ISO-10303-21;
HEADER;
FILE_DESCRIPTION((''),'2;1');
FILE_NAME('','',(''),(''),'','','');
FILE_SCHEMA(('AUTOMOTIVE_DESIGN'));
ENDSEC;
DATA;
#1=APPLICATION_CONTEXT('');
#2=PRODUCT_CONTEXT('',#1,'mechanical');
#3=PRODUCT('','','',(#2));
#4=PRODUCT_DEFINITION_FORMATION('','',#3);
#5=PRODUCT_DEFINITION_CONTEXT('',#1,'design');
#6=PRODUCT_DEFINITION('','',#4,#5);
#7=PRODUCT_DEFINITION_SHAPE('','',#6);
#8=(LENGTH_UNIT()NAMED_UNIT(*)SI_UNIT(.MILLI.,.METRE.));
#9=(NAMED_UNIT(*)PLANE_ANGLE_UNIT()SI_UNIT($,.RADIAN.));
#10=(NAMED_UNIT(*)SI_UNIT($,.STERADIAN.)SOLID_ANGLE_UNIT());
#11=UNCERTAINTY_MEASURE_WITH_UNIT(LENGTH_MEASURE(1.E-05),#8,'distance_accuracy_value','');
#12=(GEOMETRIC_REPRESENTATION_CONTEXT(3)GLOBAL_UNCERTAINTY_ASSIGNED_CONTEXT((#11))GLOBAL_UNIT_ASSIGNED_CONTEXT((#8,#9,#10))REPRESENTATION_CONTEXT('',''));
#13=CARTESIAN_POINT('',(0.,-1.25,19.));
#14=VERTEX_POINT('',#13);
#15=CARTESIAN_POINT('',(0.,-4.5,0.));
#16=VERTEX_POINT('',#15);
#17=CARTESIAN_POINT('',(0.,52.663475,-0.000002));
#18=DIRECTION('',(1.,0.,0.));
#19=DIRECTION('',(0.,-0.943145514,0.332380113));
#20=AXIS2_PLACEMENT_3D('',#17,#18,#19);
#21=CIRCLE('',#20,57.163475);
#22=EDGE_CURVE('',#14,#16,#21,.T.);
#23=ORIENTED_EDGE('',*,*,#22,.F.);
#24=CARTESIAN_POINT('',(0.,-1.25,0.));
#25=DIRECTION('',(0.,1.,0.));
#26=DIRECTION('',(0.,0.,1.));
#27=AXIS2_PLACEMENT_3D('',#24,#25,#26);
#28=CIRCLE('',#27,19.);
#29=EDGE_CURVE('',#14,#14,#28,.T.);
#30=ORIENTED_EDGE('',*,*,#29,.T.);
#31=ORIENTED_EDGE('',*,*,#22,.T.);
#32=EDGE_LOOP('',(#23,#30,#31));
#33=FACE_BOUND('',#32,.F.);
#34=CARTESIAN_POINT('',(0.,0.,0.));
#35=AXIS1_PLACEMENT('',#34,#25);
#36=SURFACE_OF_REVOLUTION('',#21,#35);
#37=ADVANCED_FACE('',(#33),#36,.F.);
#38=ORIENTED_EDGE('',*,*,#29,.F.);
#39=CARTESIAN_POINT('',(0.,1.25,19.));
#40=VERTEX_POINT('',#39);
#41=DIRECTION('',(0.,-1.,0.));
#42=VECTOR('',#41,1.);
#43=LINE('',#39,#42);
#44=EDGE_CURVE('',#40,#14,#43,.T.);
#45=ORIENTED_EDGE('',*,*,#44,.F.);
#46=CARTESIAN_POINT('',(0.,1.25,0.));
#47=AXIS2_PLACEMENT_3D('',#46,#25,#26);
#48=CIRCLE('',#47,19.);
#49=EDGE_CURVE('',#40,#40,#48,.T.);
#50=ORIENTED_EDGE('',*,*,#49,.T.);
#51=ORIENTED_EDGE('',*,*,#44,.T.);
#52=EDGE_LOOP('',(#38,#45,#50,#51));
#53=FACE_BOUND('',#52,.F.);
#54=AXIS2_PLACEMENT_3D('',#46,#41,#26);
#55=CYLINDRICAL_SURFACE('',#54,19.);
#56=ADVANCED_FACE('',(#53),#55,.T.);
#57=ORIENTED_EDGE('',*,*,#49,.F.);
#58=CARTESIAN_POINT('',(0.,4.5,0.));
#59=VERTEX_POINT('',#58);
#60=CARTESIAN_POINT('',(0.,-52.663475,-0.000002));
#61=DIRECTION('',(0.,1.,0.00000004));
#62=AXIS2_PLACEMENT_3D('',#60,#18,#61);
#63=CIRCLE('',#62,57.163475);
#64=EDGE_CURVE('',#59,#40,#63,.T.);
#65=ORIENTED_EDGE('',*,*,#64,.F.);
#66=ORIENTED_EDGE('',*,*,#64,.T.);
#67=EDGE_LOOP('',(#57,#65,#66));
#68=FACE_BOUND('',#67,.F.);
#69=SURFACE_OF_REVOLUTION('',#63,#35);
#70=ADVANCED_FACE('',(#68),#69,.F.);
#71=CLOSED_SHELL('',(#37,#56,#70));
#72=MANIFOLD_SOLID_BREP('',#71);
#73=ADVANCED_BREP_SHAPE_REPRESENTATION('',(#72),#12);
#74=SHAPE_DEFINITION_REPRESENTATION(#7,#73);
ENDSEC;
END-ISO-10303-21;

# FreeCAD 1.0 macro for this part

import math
import FreeCAD as App
import Part
import Sketcher

V = App.Vector
Q = App.Units.Quantity

doc = App.newDocument("Part")
params = doc.addObject("Spreadsheet::Sheet", "Params")
for row, (alias, value) in enumerate([
    ("sketch1_width", "9 mm"),
    ("sketch1_width2", "2.5 mm"),
    ("revolution_angle", "360 deg"),
], start=1):
    params.set(f"A{row}", alias)
    params.set(f"B{row}", "=" + value)
    params.setAlias(f"B{row}", alias)

body = doc.addObject("PartDesign::Body", "Body")

# Sketch on YZ plane
sketch1 = body.newObject("Sketcher::SketchObject", "Sketch")
sketch1.AttachmentSupport = (doc.getObject("YZ_Plane"), [""])
sketch1.MapMode = "FlatFace"
sketch1.addGeometry(Part.LineSegment(V(1.2, 19, 0), V(-1.2, 19, 0)), False)
sketch1.addGeometry(Part.ArcOfCircle(Part.Circle(V(52.7, 0, 0), V(0, 0, 1), 57.2), math.radians(160.59), math.radians(180)), False)
sketch1.addGeometry(Part.LineSegment(V(-4.5, 0, 0), V(4.5, 0, 0)), False)
sketch1.addGeometry(Part.ArcOfCircle(Part.Circle(V(-52.7, 0, 0), V(0, 0, 1), 57.2), math.radians(0), math.radians(19.41)), False)
sketch1.addConstraint(Sketcher.Constraint("Coincident", 0, 2, 1, 1))
sketch1.addConstraint(Sketcher.Constraint("Coincident", 1, 2, 2, 1))
sketch1.addConstraint(Sketcher.Constraint("Coincident", 2, 2, 3, 1))
sketch1.addConstraint(Sketcher.Constraint("Coincident", 3, 2, 0, 1))
sketch1.addConstraint(Sketcher.Constraint("Horizontal", 0))
sketch1.addConstraint(Sketcher.Constraint("Horizontal", 2))
sketch1.addConstraint(Sketcher.Constraint("Equal", 1, 3))
sketch1.addConstraint(Sketcher.Constraint("Symmetric", 1, 3, 3, 3, -1, 1))
sketch1.addConstraint(Sketcher.Constraint("PointOnObject", 1, 2, -1))
sketch1.addConstraint(Sketcher.Constraint("Horizontal", 1, 3, 3, 3))
sketch1.addConstraint(Sketcher.Constraint("DistanceX", 2, 1, 2, 2, Q("9 mm")))
sketch1.addConstraint(Sketcher.Constraint("DistanceX", 0, 2, 0, 1, Q("2.5 mm")))
sketch1.addConstraint(Sketcher.Constraint("DistanceY", -1, 1, 0, 2, Q("19 mm")))
sketch1.setExpression("Constraints[10]", "Params.sketch1_width")
sketch1.setExpression("Constraints[11]", "Params.sketch1_width2")
revolution = body.newObject("PartDesign::Revolution", "Revolution")
revolution.Profile = sketch1
revolution.ReferenceAxis = (sketch1, ["H_Axis"])
revolution.setExpression("Angle", "Params.revolution_angle")

doc.recompute()
